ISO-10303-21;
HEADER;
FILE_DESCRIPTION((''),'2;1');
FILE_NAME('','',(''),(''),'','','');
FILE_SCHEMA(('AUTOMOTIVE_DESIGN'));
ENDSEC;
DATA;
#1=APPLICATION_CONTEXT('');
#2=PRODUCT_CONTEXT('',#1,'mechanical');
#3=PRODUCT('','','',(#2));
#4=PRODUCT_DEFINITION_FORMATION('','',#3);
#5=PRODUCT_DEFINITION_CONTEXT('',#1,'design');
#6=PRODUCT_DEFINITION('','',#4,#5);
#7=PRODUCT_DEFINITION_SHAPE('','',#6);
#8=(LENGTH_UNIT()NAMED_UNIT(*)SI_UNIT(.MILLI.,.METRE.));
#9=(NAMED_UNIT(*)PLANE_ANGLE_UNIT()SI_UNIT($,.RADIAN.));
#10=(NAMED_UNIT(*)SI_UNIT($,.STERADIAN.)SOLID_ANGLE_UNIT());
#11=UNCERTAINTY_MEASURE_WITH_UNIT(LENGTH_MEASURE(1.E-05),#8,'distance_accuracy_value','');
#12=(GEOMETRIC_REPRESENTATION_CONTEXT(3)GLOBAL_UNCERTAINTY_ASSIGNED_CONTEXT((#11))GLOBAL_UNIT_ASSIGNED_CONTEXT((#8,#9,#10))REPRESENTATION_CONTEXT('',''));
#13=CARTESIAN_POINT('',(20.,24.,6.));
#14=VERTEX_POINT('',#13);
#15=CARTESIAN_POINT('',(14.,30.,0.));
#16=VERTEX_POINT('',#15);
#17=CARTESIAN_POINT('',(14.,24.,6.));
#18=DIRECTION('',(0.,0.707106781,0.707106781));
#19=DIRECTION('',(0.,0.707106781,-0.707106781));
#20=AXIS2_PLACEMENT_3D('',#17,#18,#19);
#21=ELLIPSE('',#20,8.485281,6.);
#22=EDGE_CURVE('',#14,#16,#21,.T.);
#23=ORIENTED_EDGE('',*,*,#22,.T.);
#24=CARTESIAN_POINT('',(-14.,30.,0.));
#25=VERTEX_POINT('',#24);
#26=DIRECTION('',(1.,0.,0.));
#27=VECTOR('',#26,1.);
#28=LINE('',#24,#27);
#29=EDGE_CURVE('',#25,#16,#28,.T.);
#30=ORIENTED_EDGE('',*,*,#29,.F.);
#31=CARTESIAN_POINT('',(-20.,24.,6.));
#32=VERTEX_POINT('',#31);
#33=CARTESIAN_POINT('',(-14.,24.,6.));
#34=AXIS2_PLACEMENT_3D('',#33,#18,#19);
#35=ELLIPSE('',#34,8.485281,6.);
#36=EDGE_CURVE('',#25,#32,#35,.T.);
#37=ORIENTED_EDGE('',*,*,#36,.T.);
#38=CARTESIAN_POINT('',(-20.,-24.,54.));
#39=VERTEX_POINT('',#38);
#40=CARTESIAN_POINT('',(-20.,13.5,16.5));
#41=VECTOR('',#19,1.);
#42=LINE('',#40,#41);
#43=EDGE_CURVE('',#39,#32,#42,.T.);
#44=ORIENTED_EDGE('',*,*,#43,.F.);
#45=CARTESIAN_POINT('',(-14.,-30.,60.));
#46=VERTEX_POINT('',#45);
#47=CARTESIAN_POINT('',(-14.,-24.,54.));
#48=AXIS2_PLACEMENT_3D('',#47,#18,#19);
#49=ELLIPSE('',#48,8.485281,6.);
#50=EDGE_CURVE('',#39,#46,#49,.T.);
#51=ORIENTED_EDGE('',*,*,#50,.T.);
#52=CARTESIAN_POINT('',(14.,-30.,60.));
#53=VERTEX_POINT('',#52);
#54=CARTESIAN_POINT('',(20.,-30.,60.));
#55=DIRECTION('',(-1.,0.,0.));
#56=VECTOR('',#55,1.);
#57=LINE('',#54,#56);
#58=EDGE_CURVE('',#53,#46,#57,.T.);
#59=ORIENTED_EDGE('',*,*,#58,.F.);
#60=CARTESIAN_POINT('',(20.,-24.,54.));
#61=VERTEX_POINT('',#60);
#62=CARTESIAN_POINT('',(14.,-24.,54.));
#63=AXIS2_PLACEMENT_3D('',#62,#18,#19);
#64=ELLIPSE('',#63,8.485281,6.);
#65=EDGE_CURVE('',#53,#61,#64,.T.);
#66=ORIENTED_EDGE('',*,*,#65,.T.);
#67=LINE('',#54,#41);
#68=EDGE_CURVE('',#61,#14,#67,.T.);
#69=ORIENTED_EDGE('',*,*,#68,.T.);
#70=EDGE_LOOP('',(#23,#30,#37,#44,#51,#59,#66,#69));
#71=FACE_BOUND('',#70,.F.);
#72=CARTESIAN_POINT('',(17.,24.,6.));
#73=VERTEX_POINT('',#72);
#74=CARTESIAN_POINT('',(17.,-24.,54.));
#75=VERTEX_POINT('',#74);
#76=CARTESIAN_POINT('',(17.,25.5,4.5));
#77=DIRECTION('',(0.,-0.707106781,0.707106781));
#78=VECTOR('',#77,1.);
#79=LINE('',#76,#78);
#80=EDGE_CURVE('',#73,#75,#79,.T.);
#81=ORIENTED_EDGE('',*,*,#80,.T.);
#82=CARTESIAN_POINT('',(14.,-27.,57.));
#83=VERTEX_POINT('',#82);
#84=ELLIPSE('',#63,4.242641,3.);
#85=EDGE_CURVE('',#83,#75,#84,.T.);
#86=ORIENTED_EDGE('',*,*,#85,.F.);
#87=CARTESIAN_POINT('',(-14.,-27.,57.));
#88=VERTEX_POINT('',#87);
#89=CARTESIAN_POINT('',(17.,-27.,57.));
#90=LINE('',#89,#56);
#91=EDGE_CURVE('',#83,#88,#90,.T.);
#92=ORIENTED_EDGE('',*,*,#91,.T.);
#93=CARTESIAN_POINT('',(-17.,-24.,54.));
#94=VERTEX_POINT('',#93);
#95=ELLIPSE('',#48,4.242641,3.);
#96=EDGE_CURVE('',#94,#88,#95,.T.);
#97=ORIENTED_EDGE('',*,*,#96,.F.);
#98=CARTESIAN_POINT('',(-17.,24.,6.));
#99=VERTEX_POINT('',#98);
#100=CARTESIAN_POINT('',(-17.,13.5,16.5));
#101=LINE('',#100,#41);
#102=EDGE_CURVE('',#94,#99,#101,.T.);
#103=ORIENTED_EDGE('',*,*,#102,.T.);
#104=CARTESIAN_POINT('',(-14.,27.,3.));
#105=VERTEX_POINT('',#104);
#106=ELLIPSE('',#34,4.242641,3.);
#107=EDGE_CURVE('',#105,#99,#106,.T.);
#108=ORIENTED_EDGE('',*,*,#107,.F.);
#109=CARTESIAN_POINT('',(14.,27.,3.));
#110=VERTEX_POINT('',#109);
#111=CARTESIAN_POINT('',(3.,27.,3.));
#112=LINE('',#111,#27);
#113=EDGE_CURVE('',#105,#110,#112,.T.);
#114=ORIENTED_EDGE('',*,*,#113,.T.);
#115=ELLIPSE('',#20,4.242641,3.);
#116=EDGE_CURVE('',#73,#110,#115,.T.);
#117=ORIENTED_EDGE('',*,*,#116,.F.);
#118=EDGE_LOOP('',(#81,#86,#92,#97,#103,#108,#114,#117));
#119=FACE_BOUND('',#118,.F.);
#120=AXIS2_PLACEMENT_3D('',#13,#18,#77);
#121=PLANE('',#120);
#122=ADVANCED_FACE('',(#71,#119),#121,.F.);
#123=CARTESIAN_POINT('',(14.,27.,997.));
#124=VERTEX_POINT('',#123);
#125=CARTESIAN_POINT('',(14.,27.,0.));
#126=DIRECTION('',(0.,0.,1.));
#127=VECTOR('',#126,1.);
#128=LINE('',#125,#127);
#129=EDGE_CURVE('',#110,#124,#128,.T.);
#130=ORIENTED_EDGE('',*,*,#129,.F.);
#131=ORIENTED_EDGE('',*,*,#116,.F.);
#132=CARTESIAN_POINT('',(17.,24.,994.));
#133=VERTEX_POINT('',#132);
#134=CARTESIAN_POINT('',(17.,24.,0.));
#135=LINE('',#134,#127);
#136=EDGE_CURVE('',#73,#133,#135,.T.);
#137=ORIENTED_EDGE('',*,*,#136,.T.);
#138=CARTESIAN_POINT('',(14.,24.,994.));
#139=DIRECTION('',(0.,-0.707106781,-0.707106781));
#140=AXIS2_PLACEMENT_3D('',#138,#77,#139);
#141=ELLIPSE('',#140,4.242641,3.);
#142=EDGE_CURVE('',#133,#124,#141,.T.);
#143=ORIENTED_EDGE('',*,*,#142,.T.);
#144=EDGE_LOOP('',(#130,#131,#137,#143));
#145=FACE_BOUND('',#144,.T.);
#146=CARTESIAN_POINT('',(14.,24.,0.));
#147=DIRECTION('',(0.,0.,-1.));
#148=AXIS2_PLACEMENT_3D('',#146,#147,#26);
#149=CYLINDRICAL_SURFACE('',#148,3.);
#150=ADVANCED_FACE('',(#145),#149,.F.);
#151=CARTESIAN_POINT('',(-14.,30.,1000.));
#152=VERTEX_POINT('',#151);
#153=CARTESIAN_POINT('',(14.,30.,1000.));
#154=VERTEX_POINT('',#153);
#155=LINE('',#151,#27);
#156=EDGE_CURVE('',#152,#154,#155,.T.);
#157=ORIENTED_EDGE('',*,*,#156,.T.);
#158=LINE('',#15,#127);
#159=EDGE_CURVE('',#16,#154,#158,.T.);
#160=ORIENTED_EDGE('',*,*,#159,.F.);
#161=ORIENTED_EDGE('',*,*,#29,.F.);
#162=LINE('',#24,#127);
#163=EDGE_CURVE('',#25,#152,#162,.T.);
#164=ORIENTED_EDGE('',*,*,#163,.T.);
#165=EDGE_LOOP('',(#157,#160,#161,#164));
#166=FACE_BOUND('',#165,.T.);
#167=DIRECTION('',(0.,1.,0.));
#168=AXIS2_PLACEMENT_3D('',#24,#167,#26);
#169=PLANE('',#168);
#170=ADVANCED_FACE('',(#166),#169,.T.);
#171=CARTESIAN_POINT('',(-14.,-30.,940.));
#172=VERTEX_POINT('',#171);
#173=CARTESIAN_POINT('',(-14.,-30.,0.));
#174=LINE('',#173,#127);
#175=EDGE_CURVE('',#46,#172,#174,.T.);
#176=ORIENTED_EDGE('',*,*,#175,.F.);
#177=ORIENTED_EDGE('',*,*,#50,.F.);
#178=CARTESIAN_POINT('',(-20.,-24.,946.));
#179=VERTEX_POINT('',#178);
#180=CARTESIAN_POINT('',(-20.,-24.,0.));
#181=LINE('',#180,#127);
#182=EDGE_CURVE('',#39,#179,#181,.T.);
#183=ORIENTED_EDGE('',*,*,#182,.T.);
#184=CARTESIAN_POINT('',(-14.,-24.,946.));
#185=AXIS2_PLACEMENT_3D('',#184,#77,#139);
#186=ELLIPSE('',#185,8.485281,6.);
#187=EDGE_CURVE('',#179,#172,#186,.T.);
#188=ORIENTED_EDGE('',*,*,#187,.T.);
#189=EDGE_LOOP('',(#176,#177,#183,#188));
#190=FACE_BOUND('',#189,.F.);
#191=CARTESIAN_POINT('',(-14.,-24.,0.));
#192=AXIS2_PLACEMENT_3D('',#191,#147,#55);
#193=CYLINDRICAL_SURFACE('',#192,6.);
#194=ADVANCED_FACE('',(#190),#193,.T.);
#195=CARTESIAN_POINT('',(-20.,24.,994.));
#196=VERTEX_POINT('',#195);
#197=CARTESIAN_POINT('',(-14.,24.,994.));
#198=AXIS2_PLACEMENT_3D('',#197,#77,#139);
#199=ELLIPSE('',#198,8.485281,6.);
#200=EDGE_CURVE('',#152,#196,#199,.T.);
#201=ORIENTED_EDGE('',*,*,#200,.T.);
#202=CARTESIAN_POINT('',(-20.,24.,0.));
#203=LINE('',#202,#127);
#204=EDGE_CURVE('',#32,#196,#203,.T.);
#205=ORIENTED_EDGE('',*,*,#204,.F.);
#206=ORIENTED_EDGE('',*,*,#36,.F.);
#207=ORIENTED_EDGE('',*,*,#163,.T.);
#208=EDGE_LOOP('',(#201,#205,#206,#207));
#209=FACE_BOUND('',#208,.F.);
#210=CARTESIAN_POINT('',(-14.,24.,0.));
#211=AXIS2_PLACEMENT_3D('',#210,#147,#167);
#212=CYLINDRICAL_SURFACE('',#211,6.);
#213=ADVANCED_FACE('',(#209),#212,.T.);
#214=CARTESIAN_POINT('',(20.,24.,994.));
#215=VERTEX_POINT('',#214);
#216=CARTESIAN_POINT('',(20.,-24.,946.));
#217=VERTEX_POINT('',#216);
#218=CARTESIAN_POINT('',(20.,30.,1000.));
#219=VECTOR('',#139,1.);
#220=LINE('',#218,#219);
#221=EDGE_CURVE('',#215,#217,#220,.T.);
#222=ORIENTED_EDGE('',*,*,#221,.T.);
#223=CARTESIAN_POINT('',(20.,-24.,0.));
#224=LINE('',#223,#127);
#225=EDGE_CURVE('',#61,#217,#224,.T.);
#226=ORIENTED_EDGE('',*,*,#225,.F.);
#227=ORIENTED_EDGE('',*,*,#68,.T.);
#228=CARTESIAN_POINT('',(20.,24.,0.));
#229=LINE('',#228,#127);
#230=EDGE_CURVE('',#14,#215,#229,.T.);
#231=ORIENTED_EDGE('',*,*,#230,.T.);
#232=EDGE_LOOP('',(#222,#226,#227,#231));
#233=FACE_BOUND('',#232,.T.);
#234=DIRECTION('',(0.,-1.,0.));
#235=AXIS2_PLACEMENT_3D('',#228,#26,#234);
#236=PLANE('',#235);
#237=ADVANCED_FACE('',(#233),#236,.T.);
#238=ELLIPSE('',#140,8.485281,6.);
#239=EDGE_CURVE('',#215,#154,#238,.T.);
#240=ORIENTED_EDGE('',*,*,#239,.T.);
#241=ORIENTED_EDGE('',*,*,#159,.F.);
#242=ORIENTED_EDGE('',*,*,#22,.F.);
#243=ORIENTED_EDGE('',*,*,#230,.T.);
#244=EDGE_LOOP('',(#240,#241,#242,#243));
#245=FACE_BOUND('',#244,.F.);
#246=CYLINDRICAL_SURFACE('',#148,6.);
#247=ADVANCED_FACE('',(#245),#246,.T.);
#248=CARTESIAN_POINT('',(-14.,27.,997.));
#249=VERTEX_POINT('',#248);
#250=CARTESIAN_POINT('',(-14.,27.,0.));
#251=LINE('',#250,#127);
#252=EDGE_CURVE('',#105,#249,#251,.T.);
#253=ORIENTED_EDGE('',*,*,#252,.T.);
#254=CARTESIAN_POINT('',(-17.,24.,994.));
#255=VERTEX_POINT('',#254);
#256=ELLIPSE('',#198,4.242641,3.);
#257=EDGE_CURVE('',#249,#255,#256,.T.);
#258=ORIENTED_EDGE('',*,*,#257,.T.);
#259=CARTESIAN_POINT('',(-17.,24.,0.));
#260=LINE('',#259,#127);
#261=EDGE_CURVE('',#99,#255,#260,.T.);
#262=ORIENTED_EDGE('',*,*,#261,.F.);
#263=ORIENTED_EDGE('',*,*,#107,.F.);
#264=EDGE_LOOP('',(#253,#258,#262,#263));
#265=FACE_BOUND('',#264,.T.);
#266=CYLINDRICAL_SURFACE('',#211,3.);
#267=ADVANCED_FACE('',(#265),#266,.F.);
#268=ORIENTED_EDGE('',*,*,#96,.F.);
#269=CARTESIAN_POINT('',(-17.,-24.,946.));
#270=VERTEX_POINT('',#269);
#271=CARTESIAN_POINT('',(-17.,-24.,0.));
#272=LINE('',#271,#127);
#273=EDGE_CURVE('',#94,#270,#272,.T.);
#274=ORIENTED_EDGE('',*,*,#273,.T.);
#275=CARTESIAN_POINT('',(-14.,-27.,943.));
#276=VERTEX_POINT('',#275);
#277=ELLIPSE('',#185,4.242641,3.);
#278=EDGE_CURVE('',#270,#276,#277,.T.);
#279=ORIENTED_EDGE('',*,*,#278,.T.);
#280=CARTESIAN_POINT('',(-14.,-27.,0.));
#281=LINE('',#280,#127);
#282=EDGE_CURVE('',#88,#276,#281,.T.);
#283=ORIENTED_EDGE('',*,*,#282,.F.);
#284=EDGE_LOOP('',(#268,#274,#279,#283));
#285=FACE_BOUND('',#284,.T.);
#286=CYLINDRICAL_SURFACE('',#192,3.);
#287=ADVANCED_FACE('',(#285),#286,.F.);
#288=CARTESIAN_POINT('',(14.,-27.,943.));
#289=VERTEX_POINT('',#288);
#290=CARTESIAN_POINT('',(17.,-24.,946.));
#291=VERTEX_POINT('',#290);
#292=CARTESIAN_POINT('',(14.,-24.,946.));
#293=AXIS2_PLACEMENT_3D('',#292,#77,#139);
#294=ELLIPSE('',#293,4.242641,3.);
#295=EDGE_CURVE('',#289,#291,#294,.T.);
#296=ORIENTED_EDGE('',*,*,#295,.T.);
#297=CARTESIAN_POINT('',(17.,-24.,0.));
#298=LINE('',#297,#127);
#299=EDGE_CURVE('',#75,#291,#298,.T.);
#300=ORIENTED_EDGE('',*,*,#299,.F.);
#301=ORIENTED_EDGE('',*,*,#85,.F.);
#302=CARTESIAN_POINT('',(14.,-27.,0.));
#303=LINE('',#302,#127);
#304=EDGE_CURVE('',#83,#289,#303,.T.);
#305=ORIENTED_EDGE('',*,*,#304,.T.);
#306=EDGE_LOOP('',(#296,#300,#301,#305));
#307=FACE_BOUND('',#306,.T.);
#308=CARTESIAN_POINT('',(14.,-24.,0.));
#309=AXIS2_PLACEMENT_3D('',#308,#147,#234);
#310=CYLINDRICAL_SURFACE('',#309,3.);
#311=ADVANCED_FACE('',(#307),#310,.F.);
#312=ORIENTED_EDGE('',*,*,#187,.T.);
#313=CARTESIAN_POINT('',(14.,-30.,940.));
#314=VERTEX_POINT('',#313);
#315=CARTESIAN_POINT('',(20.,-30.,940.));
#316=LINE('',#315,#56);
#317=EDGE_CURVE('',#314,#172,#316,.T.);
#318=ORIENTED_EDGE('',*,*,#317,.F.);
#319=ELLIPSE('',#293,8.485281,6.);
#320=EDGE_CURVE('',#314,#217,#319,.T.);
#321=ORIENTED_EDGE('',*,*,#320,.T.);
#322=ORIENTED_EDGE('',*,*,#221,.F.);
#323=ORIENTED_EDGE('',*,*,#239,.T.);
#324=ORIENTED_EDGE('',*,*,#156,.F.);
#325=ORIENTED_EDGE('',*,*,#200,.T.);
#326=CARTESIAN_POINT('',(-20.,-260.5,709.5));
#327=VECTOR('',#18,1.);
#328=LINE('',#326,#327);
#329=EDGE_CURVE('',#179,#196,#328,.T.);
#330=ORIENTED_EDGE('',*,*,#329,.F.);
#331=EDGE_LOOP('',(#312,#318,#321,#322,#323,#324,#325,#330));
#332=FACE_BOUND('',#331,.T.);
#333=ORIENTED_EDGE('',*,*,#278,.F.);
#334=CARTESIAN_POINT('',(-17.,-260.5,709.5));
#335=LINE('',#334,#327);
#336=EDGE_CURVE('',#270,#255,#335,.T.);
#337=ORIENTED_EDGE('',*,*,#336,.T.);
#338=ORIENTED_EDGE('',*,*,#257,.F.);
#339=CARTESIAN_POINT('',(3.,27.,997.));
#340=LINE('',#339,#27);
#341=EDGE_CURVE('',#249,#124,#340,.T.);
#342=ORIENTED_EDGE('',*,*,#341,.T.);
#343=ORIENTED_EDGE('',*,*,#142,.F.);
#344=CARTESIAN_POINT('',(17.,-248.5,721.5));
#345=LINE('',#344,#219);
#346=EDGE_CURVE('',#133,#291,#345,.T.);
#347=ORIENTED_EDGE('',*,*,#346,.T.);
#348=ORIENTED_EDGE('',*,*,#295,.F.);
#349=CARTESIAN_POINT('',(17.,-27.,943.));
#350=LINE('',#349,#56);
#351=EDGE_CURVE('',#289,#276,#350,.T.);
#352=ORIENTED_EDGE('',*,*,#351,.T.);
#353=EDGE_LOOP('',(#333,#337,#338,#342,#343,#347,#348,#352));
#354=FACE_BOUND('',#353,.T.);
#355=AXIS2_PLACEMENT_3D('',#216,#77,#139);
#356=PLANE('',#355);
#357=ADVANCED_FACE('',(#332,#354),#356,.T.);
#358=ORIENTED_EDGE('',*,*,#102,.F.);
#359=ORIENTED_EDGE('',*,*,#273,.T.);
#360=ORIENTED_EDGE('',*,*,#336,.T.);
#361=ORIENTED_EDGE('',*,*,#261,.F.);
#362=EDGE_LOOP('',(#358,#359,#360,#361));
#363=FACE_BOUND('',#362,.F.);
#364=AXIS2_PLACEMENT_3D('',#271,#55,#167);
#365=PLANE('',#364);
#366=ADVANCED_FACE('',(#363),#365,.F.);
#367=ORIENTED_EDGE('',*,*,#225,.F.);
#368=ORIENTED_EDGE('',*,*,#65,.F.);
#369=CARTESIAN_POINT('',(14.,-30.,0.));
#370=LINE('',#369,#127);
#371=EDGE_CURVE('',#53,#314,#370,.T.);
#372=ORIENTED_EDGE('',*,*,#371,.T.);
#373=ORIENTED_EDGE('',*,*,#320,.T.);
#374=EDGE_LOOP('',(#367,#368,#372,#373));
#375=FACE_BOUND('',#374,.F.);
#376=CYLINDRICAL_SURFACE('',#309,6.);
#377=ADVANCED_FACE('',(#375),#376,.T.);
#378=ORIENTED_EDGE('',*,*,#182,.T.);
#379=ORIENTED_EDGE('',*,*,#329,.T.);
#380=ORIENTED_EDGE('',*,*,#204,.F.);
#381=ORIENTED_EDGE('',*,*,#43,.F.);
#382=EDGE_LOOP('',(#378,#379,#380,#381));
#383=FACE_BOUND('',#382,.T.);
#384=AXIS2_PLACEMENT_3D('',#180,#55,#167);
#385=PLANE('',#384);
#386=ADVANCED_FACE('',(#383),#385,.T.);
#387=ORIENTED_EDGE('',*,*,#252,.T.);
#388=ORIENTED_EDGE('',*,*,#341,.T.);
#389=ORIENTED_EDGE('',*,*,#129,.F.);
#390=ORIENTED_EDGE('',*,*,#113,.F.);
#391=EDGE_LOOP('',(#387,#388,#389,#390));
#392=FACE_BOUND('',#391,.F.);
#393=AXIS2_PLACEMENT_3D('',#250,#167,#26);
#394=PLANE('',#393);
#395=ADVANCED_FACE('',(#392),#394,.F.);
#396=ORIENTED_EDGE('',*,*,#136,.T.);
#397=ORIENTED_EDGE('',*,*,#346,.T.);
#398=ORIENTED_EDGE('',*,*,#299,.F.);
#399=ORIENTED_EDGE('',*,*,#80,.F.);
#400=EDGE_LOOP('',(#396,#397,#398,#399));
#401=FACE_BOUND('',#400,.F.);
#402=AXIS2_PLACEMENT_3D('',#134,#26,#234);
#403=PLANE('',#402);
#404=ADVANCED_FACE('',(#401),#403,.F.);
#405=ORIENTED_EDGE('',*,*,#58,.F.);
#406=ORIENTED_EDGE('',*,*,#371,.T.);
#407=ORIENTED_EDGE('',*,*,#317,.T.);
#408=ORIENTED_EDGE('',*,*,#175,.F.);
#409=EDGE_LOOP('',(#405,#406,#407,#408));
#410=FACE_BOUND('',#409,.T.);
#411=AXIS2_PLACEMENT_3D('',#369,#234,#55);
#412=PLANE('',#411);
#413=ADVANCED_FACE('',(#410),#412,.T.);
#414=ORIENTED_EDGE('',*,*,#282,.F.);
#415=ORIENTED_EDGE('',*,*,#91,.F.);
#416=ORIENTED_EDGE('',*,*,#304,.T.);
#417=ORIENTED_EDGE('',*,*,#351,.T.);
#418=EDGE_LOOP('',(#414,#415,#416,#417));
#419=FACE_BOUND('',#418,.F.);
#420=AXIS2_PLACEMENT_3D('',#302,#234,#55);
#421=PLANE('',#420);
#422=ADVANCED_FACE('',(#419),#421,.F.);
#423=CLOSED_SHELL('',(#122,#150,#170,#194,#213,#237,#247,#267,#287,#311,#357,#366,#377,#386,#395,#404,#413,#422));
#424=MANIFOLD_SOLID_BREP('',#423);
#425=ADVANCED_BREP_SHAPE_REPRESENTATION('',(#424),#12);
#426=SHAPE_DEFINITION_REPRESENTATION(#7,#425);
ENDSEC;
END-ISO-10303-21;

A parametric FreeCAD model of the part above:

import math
import FreeCAD as App
import Part
import Sketcher

V = App.Vector


def add_polygon(sketch, points):
    """Adds a closed chain of lines whose ends are joined by coincident constraints."""
    first, n = sketch.GeometryCount, len(points)
    for a, b in zip(points, points[1:] + points[:1]):
        sketch.addGeometry(Part.LineSegment(App.Vector(*a, 0), App.Vector(*b, 0)), False)
    for i in range(n):
        sketch.addConstraint(Sketcher.Constraint("Coincident", first + i, 2, first + (i + 1) % n, 1))

doc = App.newDocument("Part")
body = doc.addObject("PartDesign::Body", "Body")

# Sketch on XY plane
sketch1 = body.newObject("Sketcher::SketchObject", "Sketch")
sketch1.AttachmentSupport = (doc.getObject("XY_Plane"), [""])
sketch1.MapMode = "FlatFace"
sketch1.addGeometry(Part.LineSegment(V(-20, 24, 0), V(-20, -24, 0)), False)
sketch1.addGeometry(Part.ArcOfCircle(Part.Circle(V(-14, -24, 0), V(0, 0, 1), 6), math.radians(180), math.radians(270)), False)
sketch1.addGeometry(Part.LineSegment(V(-14, -30, 0), V(14, -30, 0)), False)
sketch1.addGeometry(Part.ArcOfCircle(Part.Circle(V(14, -24, 0), V(0, 0, 1), 6), math.radians(-90), math.radians(0)), False)
sketch1.addGeometry(Part.LineSegment(V(20, -24, 0), V(20, 24, 0)), False)
sketch1.addGeometry(Part.ArcOfCircle(Part.Circle(V(14, 24, 0), V(0, 0, 1), 6), math.radians(0), math.radians(90)), False)
sketch1.addGeometry(Part.LineSegment(V(14, 30, 0), V(-14, 30, 0)), False)
sketch1.addGeometry(Part.ArcOfCircle(Part.Circle(V(-14, 24, 0), V(0, 0, 1), 6), math.radians(90), math.radians(180)), False)
sketch1.addGeometry(Part.ArcOfCircle(Part.Circle(V(-14, 24, 0), V(0, 0, 1), 3), math.radians(90), math.radians(180)), False)
sketch1.addGeometry(Part.LineSegment(V(-14, 27, 0), V(14, 27, 0)), False)
sketch1.addGeometry(Part.ArcOfCircle(Part.Circle(V(14, 24, 0), V(0, 0, 1), 3), math.radians(0), math.radians(90)), False)
sketch1.addGeometry(Part.LineSegment(V(17, 24, 0), V(17, -24, 0)), False)
sketch1.addGeometry(Part.ArcOfCircle(Part.Circle(V(14, -24, 0), V(0, 0, 1), 3), math.radians(-90), math.radians(0)), False)
sketch1.addGeometry(Part.LineSegment(V(14, -27, 0), V(-14, -27, 0)), False)
sketch1.addGeometry(Part.ArcOfCircle(Part.Circle(V(-14, -24, 0), V(0, 0, 1), 3), math.radians(180), math.radians(270)), False)
sketch1.addGeometry(Part.LineSegment(V(-17, -24, 0), V(-17, 24, 0)), False)
sketch1.addConstraint(Sketcher.Constraint("Tangent", 0, 2, 1, 1))
sketch1.addConstraint(Sketcher.Constraint("Tangent", 1, 2, 2, 1))
sketch1.addConstraint(Sketcher.Constraint("Tangent", 2, 2, 3, 1))
sketch1.addConstraint(Sketcher.Constraint("Tangent", 3, 2, 4, 1))
sketch1.addConstraint(Sketcher.Constraint("Tangent", 4, 2, 5, 1))
sketch1.addConstraint(Sketcher.Constraint("Tangent", 5, 2, 6, 1))
sketch1.addConstraint(Sketcher.Constraint("Tangent", 6, 2, 7, 1))
sketch1.addConstraint(Sketcher.Constraint("Tangent", 7, 2, 0, 1))
sketch1.addConstraint(Sketcher.Constraint("Tangent", 8, 1, 9, 1))
sketch1.addConstraint(Sketcher.Constraint("Tangent", 9, 2, 10, 2))
sketch1.addConstraint(Sketcher.Constraint("Tangent", 10, 1, 11, 1))
sketch1.addConstraint(Sketcher.Constraint("Tangent", 11, 2, 12, 2))
sketch1.addConstraint(Sketcher.Constraint("Tangent", 12, 1, 13, 1))
sketch1.addConstraint(Sketcher.Constraint("Tangent", 13, 2, 14, 2))
sketch1.addConstraint(Sketcher.Constraint("Tangent", 14, 1, 15, 1))
sketch1.addConstraint(Sketcher.Constraint("Tangent", 15, 2, 8, 2))
sketch1.addConstraint(Sketcher.Constraint("Vertical", 0))
sketch1.addConstraint(Sketcher.Constraint("Horizontal", 2))
sketch1.addConstraint(Sketcher.Constraint("Vertical", 4))
sketch1.addConstraint(Sketcher.Constraint("Horizontal", 6))
sketch1.addConstraint(Sketcher.Constraint("Horizontal", 9))
sketch1.addConstraint(Sketcher.Constraint("Vertical", 11))
sketch1.addConstraint(Sketcher.Constraint("Horizontal", 13))
sketch1.addConstraint(Sketcher.Constraint("Vertical", 15))
sketch1.addConstraint(Sketcher.Constraint("Coincident", 8, 3, 7, 3))
sketch1.addConstraint(Sketcher.Constraint("Coincident", 10, 3, 5, 3))
sketch1.addConstraint(Sketcher.Constraint("Coincident", 12, 3, 3, 3))
sketch1.addConstraint(Sketcher.Constraint("Equal", 1, 3))
sketch1.addConstraint(Sketcher.Constraint("Equal", 3, 5))
sketch1.addConstraint(Sketcher.Constraint("Equal", 5, 7))
sketch1.addConstraint(Sketcher.Constraint("Equal", 12, 14))
sketch1.addConstraint(Sketcher.Constraint("Symmetric", 1, 3, 5, 3, -1, 1))
sketch1.addConstraint(Sketcher.Constraint("Radius", 1, 6.0))
sketch1.addConstraint(Sketcher.Constraint("Radius", 8, 3.0))
sketch1.addConstraint(Sketcher.Constraint("DistanceX", 0, 2, -1, 1, 20.0))
sketch1.addConstraint(Sketcher.Constraint("DistanceY", 1, 2, -1, 1, 30.0))
pad1 = body.newObject("PartDesign::Pad", "Pad")
pad1.Profile = sketch1
pad1.Length = 1000

# Sketch on YZ plane
sketch2 = body.newObject("Sketcher::SketchObject", "Sketch001")
sketch2.AttachmentSupport = (doc.getObject("YZ_Plane"), [""])
sketch2.MapMode = "FlatFace"
sketch2.AttachmentOffset = App.Placement(V(0, 0, 20), App.Rotation())
add_polygon(sketch2, [(-30, 940), (30, 1000), (-30, 1000)])  # lines 0-2
add_polygon(sketch2, [(-30, 60), (-30, 0), (30, 0)])  # lines 3-5
sketch2.addConstraint(Sketcher.Constraint("Horizontal", 1))
sketch2.addConstraint(Sketcher.Constraint("Vertical", 2))
sketch2.addConstraint(Sketcher.Constraint("Vertical", 3))
sketch2.addConstraint(Sketcher.Constraint("Horizontal", 4))
sketch2.addConstraint(Sketcher.Constraint("Symmetric", 3, 2, 4, 2, -1, 1))
sketch2.addConstraint(Sketcher.Constraint("Perpendicular", 0, 5))
sketch2.addConstraint(Sketcher.Constraint("Vertical", 2, 2, 3, 2))
sketch2.addConstraint(Sketcher.Constraint("Vertical", 0, 2, 4, 2))
sketch2.addConstraint(Sketcher.Constraint("Equal", 4, 2))
sketch2.addConstraint(Sketcher.Constraint("DistanceX", 1, 2, 1, 1, 60.0))
sketch2.addConstraint(Sketcher.Constraint("DistanceY", -1, 1, 0, 2, 1000.0))
pocket1 = body.newObject("PartDesign::Pocket", "Pocket")
pocket1.Profile = sketch2
pocket1.Type = "ThroughAll"

doc.recompute()
